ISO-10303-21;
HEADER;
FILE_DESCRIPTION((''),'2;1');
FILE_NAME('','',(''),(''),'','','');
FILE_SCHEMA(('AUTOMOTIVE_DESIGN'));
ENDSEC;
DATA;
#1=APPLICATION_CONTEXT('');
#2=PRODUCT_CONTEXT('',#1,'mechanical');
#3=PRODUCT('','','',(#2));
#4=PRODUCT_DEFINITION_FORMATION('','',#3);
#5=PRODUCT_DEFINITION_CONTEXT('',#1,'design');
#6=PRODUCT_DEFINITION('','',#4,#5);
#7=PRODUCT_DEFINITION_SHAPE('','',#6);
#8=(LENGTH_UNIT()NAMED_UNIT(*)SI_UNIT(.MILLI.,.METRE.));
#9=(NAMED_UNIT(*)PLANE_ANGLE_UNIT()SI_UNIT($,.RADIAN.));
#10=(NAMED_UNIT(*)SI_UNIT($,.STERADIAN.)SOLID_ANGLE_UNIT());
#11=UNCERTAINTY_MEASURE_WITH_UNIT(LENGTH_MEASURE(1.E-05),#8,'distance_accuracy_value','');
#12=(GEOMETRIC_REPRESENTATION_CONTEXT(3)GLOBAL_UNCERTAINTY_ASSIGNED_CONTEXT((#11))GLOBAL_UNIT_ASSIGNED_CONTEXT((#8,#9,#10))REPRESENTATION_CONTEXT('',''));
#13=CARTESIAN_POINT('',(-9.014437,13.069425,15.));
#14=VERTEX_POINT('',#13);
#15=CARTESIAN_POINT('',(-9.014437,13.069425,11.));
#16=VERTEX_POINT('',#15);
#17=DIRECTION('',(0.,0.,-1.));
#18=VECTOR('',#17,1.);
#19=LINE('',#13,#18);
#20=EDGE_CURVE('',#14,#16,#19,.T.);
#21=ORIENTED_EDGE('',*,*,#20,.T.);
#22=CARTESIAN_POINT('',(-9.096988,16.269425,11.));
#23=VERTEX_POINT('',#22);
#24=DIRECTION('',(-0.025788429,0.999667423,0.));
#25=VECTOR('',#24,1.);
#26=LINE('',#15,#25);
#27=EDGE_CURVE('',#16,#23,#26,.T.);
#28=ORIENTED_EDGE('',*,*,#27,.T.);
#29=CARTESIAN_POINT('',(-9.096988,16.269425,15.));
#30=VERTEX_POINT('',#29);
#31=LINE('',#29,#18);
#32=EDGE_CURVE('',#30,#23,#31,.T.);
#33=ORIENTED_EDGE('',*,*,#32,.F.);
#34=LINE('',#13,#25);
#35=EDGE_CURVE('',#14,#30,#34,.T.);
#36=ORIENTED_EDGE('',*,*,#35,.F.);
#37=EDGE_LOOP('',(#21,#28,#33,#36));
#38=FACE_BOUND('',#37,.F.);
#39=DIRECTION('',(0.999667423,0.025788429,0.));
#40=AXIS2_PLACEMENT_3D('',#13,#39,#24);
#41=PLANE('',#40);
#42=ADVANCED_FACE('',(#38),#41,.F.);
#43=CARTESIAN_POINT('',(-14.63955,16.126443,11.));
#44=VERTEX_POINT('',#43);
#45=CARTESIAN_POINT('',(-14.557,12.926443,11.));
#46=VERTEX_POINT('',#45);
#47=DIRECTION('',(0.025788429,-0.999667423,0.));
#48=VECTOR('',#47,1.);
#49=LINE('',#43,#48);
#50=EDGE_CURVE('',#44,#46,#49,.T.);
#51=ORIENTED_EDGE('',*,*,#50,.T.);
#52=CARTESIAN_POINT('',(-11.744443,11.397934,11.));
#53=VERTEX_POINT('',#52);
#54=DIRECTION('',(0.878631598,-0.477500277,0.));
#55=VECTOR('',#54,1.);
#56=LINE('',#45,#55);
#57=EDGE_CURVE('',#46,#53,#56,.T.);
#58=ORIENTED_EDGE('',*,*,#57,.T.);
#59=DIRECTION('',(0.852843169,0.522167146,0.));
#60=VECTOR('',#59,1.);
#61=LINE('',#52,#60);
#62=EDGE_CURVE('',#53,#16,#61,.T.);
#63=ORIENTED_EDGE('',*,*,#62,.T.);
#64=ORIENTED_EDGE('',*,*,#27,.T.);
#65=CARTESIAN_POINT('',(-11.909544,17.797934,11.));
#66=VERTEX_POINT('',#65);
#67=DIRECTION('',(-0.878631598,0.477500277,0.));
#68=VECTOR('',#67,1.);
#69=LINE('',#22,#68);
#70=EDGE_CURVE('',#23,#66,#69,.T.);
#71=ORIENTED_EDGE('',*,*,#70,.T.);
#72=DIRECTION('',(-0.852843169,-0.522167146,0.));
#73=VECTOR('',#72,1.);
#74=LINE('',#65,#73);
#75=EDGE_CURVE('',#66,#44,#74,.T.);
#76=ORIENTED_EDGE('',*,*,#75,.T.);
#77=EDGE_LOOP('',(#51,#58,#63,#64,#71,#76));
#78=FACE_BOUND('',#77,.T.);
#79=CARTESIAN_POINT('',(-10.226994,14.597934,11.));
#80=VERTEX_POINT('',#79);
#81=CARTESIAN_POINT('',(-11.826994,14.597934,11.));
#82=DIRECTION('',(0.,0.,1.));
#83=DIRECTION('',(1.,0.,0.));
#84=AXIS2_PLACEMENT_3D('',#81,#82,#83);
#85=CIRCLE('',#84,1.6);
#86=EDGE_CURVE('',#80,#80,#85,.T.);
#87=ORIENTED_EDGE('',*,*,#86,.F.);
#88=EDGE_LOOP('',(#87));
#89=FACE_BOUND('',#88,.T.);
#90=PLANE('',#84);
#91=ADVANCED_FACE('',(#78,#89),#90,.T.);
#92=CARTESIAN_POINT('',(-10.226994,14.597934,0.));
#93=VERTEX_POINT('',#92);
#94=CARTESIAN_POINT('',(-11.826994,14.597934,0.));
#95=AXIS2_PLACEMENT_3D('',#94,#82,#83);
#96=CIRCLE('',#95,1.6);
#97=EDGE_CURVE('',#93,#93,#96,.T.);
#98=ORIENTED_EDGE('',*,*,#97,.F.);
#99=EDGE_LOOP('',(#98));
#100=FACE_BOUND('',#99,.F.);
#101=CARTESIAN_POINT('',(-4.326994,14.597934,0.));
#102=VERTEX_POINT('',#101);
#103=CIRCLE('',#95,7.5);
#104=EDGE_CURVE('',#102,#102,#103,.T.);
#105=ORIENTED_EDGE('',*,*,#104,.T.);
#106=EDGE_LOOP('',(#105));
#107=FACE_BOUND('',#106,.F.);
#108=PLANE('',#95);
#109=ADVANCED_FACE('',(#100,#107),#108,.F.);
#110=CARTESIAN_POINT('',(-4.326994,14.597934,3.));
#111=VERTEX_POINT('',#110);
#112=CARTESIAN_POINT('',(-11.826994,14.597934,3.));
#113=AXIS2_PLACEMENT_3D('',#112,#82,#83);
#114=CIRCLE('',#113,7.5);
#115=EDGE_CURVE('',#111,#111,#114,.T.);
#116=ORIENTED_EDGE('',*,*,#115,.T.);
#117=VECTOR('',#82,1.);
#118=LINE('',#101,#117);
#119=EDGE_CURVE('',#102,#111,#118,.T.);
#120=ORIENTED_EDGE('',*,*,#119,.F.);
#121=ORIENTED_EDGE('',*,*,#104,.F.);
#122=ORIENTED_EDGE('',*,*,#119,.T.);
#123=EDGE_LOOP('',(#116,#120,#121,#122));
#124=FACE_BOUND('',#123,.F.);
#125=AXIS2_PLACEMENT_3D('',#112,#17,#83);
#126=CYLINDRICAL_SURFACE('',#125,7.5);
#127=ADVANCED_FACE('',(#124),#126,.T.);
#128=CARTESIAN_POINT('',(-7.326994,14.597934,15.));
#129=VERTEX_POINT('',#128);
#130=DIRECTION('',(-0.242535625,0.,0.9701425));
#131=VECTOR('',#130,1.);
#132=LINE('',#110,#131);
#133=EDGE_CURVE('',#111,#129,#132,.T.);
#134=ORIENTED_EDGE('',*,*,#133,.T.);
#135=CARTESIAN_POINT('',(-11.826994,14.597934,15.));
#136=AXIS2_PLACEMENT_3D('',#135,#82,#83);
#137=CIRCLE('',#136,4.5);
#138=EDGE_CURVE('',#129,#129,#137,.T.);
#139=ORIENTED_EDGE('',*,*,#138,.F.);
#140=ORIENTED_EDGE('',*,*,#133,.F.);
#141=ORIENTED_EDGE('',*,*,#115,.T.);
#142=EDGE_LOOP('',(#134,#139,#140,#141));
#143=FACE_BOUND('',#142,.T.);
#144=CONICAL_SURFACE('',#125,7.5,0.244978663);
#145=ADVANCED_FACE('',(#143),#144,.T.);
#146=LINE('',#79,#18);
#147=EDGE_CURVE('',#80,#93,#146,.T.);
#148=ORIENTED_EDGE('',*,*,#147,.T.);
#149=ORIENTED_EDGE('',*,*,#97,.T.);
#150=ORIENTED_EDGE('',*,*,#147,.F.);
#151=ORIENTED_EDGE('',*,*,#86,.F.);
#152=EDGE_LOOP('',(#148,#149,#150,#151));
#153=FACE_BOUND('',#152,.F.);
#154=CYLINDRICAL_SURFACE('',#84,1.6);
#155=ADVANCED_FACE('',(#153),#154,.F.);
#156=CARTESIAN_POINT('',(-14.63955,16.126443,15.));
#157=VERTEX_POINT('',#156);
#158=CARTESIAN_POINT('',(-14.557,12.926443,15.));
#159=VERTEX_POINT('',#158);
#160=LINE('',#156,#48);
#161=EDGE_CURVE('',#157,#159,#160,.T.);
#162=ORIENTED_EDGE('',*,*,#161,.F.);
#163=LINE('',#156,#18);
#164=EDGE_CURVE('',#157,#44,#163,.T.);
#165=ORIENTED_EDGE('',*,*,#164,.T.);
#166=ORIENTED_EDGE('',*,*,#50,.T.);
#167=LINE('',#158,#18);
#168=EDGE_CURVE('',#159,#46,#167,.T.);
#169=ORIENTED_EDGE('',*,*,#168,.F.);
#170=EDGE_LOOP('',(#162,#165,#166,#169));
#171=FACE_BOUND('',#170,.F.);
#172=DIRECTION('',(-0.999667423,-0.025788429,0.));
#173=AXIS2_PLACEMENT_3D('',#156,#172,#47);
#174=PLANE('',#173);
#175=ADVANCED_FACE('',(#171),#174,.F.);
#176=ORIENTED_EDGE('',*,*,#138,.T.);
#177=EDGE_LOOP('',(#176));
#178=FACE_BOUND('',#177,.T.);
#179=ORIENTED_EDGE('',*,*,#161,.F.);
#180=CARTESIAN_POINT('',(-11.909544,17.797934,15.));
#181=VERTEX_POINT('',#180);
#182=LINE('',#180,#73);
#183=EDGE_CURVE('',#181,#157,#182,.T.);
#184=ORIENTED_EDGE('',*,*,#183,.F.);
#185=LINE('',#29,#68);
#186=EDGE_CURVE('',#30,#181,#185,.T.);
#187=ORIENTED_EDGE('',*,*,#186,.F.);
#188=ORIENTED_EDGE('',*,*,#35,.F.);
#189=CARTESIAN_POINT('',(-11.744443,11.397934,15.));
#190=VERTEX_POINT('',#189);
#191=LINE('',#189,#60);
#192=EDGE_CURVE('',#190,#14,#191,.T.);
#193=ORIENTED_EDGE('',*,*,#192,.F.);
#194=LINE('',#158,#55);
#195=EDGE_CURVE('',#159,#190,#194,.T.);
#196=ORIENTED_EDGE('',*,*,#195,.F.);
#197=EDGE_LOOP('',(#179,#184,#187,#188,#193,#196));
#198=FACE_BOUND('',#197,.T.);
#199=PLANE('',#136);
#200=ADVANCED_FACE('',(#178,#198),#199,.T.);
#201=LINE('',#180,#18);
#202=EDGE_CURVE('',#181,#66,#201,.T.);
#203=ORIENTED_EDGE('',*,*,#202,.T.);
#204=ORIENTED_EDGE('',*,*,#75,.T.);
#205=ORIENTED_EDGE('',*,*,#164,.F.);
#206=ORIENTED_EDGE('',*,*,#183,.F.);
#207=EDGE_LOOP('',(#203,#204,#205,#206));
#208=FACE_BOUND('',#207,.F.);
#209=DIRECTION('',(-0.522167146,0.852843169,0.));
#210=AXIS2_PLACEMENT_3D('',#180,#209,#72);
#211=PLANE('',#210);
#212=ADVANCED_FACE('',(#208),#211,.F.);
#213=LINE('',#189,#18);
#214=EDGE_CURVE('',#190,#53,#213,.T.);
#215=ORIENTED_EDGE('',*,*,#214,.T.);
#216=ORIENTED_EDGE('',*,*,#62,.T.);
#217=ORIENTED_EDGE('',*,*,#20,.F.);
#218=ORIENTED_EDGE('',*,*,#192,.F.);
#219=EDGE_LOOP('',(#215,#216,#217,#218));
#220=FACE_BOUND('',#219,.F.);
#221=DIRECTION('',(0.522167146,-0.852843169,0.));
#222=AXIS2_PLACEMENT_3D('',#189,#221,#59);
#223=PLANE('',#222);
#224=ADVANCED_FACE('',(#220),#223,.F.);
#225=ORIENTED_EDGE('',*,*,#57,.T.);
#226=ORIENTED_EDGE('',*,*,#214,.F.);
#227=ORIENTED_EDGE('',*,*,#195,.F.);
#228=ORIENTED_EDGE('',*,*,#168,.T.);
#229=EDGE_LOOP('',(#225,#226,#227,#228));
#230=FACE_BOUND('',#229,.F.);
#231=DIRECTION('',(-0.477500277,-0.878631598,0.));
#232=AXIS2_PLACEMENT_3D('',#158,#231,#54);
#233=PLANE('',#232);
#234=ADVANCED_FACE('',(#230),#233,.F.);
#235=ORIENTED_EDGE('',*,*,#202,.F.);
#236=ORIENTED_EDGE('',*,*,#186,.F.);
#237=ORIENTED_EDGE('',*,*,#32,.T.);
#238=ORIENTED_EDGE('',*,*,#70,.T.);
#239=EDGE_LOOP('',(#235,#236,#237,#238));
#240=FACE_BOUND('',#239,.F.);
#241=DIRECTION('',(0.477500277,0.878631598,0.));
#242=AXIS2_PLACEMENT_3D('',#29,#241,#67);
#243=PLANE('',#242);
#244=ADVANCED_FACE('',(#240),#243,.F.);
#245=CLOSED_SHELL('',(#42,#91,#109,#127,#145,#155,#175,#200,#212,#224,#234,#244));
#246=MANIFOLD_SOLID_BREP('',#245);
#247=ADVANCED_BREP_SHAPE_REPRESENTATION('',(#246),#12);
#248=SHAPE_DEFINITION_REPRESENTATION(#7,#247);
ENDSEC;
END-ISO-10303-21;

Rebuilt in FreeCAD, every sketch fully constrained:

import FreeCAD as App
import Part
import Sketcher
from FreeCAD import Vector
Q = App.Units.Quantity


def edges_at(feature, points):
    """Names of the edges that pass closest to the given points."""
    edges = feature.Shape.Edges
    near = lambda p: min(range(len(edges)), key=lambda i: edges[i].distToShape(Part.Vertex(*p))[0])
    return sorted({f"Edge{near(p) + 1}" for p in points})

doc = App.newDocument("Part")
params = doc.addObject("Spreadsheet::Sheet", "Params")
for row, (alias, value) in enumerate([
    ("sketch1_diameter", "15 mm"),
    ("pad1_length", "3 mm"),
    ("sketch2_diameter", "15 mm"),
    ("pad2_length", "12 mm"),
    ("chamfer_size", "12 mm"),
    ("chamfer_size2", "3 mm"),
    ("pocket1_length", "4 mm"),
    ("sketch4_diameter", "3.2 mm"),
    ("pocket2_length", "11 mm"),
], start=1):
    params.set(f"A{row}", alias)
    params.set(f"B{row}", "=" + value)
    params.setAlias(f"B{row}", alias)

body = doc.addObject("PartDesign::Body", "Body")

sketch1 = body.newObject("Sketcher::SketchObject", "Sketch")
sketch1.AttachmentSupport = (doc.getObject("XY_Plane"), [""])
sketch1.MapMode = "FlatFace"
sketch1.addGeometry(Part.Circle(Vector(-11.826994, 14.597934, 0), Vector(0, 0, 1), 7.5), False)
sketch1.addConstraint([
    Sketcher.Constraint("Diameter", 0, Q("15 mm")),
    Sketcher.Constraint("DistanceX", 0, 3, -1, 1, Q("11.826994 mm")),
    Sketcher.Constraint("DistanceY", -1, 1, 0, 3, Q("14.597934 mm")),
])
sketch1.setExpression("Constraints[0]", "Params.sketch1_diameter")
pad1 = body.newObject("PartDesign::Pad", "Pad")
pad1.Profile = sketch1
pad1.setExpression("Length", "Params.pad1_length")

sketch2 = body.newObject("Sketcher::SketchObject", "Sketch001")
sketch2.AttachmentSupport = (doc.getObject("XY_Plane"), [""])
sketch2.MapMode = "FlatFace"
sketch2.AttachmentOffset = App.Placement(Vector(0, 0, 3), App.Rotation())
sketch2.addGeometry(Part.Circle(Vector(-11.826994, 14.597934, 0), Vector(0, 0, 1), 7.5), False)
sketch2.addConstraint([
    Sketcher.Constraint("Diameter", 0, Q("15 mm")),
    Sketcher.Constraint("DistanceX", 0, 3, -1, 1, Q("11.826994 mm")),
    Sketcher.Constraint("DistanceY", -1, 1, 0, 3, Q("14.597934 mm")),
])
sketch2.setExpression("Constraints[0]", "Params.sketch2_diameter")
pad2 = body.newObject("PartDesign::Pad", "Pad001")
pad2.Profile = sketch2
pad2.setExpression("Length", "Params.pad2_length")
doc.recompute()

chamfer = body.newObject("PartDesign::Chamfer", "Chamfer")
chamfer.Base = (pad2, edges_at(pad2, [(-19.327, 14.598, 15)]))
chamfer.ChamferType = "Two distances"
chamfer.setExpression("Size", "Params.chamfer_size")
chamfer.setExpression("Size2", "Params.chamfer_size2")
chamfer.FlipDirection = True

sketch3 = body.newObject("Sketcher::SketchObject", "Sketch002")
sketch3.AttachmentSupport = (doc.getObject("XY_Plane"), [""])
sketch3.MapMode = "FlatFace"
sketch3.AttachmentOffset = App.Placement(Vector(0, 0, 15), App.Rotation())
sketch3.addGeometry([
    Part.LineSegment(Vector(-11.909544, 17.797934, 0), Vector(-14.63955, 16.126443, 0)),
    Part.LineSegment(Vector(-14.63955, 16.126443, 0), Vector(-14.557, 12.926443, 0)),
    Part.LineSegment(Vector(-14.557, 12.926443, 0), Vector(-11.744443, 11.397934, 0)),
    Part.LineSegment(Vector(-11.744443, 11.397934, 0), Vector(-9.014437, 13.069425, 0)),
    Part.LineSegment(Vector(-9.014437, 13.069425, 0), Vector(-9.096988, 16.269425, 0)),
    Part.LineSegment(Vector(-9.096988, 16.269425, 0), Vector(-11.909544, 17.797934, 0)),
], False)
sketch3.addConstraint([
    Sketcher.Constraint("Coincident", 0, 2, 1, 1),
    Sketcher.Constraint("Coincident", 1, 2, 2, 1),
    Sketcher.Constraint("Coincident", 2, 2, 3, 1),
    Sketcher.Constraint("Coincident", 3, 2, 4, 1),
    Sketcher.Constraint("Coincident", 4, 2, 5, 1),
    Sketcher.Constraint("Coincident", 5, 2, 0, 1),
    Sketcher.Constraint("Parallel", 0, 3),
    Sketcher.Constraint("Parallel", 1, 4),
    Sketcher.Constraint("Parallel", 2, 5),
    Sketcher.Constraint("Equal", 0, 1),
    Sketcher.Constraint("Equal", 1, 2),
    Sketcher.Constraint("Equal", 2, 3),
    Sketcher.Constraint("DistanceY", 1, 2, 0, 2, Q("3.2 mm")),
    Sketcher.Constraint("DistanceY", 2, 2, 5, 2, Q("6.4 mm")),
    Sketcher.Constraint("DistanceX", 1, 2, -1, 1, Q("14.557 mm")),
    Sketcher.Constraint("DistanceX", 5, 2, 2, 2, Q("0.165101 mm")),
    Sketcher.Constraint("DistanceX", 0, 2, -1, 1, Q("14.63955 mm")),
    Sketcher.Constraint("DistanceY", -1, 1, 0, 2, Q("16.126443 mm")),
])
pocket1 = body.newObject("PartDesign::Pocket", "Pocket")
pocket1.Profile = sketch3
pocket1.setExpression("Length", "Params.pocket1_length")

sketch4 = body.newObject("Sketcher::SketchObject", "Sketch003")
sketch4.AttachmentSupport = (doc.getObject("XY_Plane"), [""])
sketch4.MapMode = "FlatFace"
sketch4.AttachmentOffset = App.Placement(Vector(0, 0, 11), App.Rotation())
sketch4.addGeometry(Part.Circle(Vector(-11.826994, 14.597934, 0), Vector(0, 0, 1), 1.6), False)
sketch4.addConstraint([
    Sketcher.Constraint("Diameter", 0, Q("3.2 mm")),
    Sketcher.Constraint("DistanceX", 0, 3, -1, 1, Q("11.826994 mm")),
    Sketcher.Constraint("DistanceY", -1, 1, 0, 3, Q("14.597934 mm")),
])
sketch4.setExpression("Constraints[0]", "Params.sketch4_diameter")
pocket2 = body.newObject("PartDesign::Pocket", "Pocket001")
pocket2.Profile = sketch4
pocket2.setExpression("Length", "Params.pocket2_length")

doc.recompute()
